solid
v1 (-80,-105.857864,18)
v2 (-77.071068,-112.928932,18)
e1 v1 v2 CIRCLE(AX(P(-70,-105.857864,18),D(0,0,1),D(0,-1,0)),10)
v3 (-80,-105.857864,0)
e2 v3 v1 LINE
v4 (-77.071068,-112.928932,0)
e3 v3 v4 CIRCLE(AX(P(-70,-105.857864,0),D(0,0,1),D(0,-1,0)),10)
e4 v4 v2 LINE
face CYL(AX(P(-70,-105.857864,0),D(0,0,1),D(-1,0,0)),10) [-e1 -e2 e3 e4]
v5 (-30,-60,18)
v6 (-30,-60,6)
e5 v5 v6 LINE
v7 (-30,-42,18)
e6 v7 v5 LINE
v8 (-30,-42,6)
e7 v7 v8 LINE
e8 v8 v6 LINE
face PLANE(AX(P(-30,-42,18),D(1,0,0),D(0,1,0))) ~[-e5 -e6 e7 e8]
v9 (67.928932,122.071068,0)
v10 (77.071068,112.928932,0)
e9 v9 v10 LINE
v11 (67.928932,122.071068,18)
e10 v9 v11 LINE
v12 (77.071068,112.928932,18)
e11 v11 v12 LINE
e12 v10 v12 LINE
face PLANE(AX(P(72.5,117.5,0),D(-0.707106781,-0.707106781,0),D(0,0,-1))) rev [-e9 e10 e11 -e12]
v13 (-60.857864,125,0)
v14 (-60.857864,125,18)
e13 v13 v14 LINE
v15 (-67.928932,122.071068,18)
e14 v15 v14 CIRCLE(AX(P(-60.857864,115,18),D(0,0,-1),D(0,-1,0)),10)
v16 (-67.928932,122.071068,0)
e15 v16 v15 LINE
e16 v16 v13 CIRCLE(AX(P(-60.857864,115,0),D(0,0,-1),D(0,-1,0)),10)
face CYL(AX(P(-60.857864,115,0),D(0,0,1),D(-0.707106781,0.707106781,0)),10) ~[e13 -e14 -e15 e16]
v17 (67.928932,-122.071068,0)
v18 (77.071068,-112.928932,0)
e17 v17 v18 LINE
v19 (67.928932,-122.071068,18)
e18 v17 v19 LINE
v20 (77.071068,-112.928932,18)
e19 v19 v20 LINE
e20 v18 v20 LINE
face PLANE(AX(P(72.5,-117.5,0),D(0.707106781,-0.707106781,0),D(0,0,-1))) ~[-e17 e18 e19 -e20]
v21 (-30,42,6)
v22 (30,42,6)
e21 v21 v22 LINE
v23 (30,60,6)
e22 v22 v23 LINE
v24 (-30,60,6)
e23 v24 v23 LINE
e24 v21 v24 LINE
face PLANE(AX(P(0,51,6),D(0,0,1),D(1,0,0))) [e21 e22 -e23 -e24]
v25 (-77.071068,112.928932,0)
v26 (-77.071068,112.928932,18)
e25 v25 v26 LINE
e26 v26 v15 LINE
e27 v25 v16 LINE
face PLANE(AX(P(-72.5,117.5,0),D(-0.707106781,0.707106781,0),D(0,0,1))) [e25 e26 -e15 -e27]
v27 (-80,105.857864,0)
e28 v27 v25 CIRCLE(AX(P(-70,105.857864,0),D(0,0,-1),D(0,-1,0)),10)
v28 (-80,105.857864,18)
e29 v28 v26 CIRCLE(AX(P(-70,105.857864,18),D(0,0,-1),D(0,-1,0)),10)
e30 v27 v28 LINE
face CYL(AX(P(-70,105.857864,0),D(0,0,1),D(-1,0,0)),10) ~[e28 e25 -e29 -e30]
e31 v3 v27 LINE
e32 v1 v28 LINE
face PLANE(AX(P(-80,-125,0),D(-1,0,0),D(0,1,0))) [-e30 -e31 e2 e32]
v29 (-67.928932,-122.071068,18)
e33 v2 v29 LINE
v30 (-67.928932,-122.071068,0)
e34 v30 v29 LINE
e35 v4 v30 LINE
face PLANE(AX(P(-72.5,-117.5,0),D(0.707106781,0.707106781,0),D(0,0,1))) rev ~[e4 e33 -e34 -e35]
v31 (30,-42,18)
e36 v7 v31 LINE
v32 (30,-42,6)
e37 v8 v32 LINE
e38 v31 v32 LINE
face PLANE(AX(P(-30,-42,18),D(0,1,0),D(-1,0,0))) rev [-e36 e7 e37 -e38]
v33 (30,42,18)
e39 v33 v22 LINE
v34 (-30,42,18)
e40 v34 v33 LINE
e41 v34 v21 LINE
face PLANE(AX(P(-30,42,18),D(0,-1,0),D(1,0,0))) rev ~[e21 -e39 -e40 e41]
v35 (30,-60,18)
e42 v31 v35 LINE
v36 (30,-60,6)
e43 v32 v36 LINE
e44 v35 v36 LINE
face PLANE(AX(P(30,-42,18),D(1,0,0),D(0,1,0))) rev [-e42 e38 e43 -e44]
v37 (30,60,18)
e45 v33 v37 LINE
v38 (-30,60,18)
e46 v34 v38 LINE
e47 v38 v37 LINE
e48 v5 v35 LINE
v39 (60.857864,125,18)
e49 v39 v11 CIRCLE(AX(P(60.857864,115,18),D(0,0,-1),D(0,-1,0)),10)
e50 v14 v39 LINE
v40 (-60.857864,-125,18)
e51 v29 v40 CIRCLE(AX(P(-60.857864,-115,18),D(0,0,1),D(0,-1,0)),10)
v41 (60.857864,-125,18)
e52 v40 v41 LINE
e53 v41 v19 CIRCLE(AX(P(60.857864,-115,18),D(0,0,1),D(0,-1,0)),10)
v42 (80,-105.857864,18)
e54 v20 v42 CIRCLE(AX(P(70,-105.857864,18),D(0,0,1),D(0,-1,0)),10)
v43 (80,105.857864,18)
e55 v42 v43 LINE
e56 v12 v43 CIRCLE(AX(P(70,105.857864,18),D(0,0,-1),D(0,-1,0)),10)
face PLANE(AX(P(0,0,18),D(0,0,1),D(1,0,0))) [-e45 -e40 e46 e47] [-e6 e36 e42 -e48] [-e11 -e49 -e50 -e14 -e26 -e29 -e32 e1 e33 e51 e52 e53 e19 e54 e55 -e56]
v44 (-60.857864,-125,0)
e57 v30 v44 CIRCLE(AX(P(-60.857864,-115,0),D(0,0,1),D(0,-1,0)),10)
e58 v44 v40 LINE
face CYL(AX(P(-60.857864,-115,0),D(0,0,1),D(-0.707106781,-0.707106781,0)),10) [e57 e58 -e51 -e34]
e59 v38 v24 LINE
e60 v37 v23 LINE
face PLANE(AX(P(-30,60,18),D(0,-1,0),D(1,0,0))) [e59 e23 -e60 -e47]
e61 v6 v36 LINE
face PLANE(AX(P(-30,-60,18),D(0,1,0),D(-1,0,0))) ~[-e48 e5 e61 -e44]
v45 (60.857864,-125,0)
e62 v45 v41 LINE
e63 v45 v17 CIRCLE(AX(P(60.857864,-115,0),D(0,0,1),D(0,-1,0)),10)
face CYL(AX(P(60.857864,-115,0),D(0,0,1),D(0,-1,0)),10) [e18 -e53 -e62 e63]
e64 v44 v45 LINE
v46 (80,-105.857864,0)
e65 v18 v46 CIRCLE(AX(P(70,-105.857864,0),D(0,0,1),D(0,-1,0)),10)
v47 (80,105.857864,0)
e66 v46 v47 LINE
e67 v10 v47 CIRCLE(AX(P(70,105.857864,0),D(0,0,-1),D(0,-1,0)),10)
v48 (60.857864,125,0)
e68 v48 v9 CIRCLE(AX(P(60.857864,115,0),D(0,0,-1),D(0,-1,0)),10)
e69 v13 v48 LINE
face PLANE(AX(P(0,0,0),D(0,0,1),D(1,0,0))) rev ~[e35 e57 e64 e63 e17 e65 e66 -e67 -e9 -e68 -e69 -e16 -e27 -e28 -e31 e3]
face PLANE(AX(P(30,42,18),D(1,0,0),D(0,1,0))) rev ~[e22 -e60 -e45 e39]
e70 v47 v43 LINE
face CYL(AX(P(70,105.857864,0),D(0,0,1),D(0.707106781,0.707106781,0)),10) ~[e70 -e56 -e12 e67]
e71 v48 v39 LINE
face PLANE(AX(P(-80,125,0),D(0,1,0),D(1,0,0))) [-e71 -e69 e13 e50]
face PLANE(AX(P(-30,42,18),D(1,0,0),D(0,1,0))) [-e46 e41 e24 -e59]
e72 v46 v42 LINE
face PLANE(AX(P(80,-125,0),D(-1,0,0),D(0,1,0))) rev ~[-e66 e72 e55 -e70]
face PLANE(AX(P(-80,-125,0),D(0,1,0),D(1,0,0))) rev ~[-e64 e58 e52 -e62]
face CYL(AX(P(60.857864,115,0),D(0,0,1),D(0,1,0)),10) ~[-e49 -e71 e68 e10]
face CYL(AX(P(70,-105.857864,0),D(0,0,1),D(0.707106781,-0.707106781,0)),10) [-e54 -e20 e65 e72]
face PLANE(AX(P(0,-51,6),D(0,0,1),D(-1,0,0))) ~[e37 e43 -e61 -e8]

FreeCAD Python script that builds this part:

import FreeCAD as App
import Part
import Sketcher
from FreeCAD import Vector


def edges_at(feature, points):
    """Names of the edges that pass closest to the given points."""
    edges = feature.Shape.Edges
    near = lambda p: min(range(len(edges)), key=lambda i: edges[i].distToShape(Part.Vertex(*p))[0])
    return sorted({f"Edge{near(p) + 1}" for p in points})

doc = App.newDocument("Part")
params = doc.addObject("Spreadsheet::Sheet", "Params")
for row, (alias, value) in enumerate([
    ("sketch1_width", "160 mm"),
    ("sketch1_height", "250 mm"),
    ("pad1_length", "18 mm"),
    ("sketch2_width", "60 mm"),
    ("sketch2_height", "18 mm"),
    ("pocket1_length", "12 mm"),
    ("chamfer_size", "15 mm"),
    ("fillet_radius", "10 mm"),
], start=1):
    params.set(f"A{row}", alias)
    params.set(f"B{row}", "=" + value)
    params.setAlias(f"B{row}", alias)

body = doc.addObject("PartDesign::Body", "Body")

sketch1 = doc.addObject("Sketcher::SketchObject", "Sketch")
body.addObject(sketch1)
sketch1.AttachmentSupport = (doc.XY_Plane, [""])
sketch1.MapMode = "FlatFace"
sketch1.addGeometry(Part.LineSegment(Vector(-80, 125, 0), Vector(-80, -125, 0)), False)
sketch1.addGeometry(Part.LineSegment(Vector(-80, -125, 0), Vector(80, -125, 0)), False)
sketch1.addGeometry(Part.LineSegment(Vector(80, -125, 0), Vector(80, 125, 0)), False)
sketch1.addGeometry(Part.LineSegment(Vector(80, 125, 0), Vector(-80, 125, 0)), False)
sketch1.addConstraint(Sketcher.Constraint("Coincident", 0, 2, 1, 1))
sketch1.addConstraint(Sketcher.Constraint("Coincident", 1, 2, 2, 1))
sketch1.addConstraint(Sketcher.Constraint("Coincident", 2, 2, 3, 1))
sketch1.addConstraint(Sketcher.Constraint("Coincident", 3, 2, 0, 1))
sketch1.addConstraint(Sketcher.Constraint("Vertical", 0))
sketch1.addConstraint(Sketcher.Constraint("Horizontal", 1))
sketch1.addConstraint(Sketcher.Constraint("Vertical", 2))
sketch1.addConstraint(Sketcher.Constraint("Horizontal", 3))
sketch1.addConstraint(Sketcher.Constraint("Symmetric", 0, 2, 2, 2, -1, 1))
sketch1.addConstraint(Sketcher.Constraint("DistanceX", 1, 1, 1, 2, 160.0))
sketch1.addConstraint(Sketcher.Constraint("DistanceY", 0, 2, 0, 1, 250.0))
sketch1.setExpression("Constraints[9]", "Params.sketch1_width")
sketch1.setExpression("Constraints[10]", "Params.sketch1_height")
pad1 = doc.addObject("PartDesign::Pad", "Pad")
body.addObject(pad1)
pad1.Profile = sketch1
pad1.setExpression("Length", "Params.pad1_length")

sketch2 = doc.addObject("Sketcher::SketchObject", "Sketch001")
body.addObject(sketch2)
sketch2.AttachmentSupport = (doc.XY_Plane, [""])
sketch2.MapMode = "FlatFace"
sketch2.AttachmentOffset = App.Placement(Vector(0, 0, 18), App.Rotation())
sketch2.addGeometry(Part.LineSegment(Vector(-30, 60, 0), Vector(-30, 42, 0)), False)
sketch2.addGeometry(Part.LineSegment(Vector(-30, 42, 0), Vector(30, 42, 0)), False)
sketch2.addGeometry(Part.LineSegment(Vector(30, 42, 0), Vector(30, 60, 0)), False)
sketch2.addGeometry(Part.LineSegment(Vector(30, 60, 0), Vector(-30, 60, 0)), False)
sketch2.addConstraint(Sketcher.Constraint("Coincident", 0, 2, 1, 1))
sketch2.addConstraint(Sketcher.Constraint("Coincident", 1, 2, 2, 1))
sketch2.addConstraint(Sketcher.Constraint("Coincident", 2, 2, 3, 1))
sketch2.addConstraint(Sketcher.Constraint("Coincident", 3, 2, 0, 1))
sketch2.addConstraint(Sketcher.Constraint("Vertical", 0))
sketch2.addConstraint(Sketcher.Constraint("Horizontal", 1))
sketch2.addConstraint(Sketcher.Constraint("Vertical", 2))
sketch2.addConstraint(Sketcher.Constraint("Horizontal", 3))
sketch2.addConstraint(Sketcher.Constraint("DistanceX", 1, 1, 1, 2, 60.0))
sketch2.addConstraint(Sketcher.Constraint("DistanceY", 0, 2, 0, 1, 18.0))
sketch2.addConstraint(Sketcher.Constraint("DistanceX", 0, 2, -1, 1, 30.0))
sketch2.addConstraint(Sketcher.Constraint("DistanceY", -1, 1, 0, 2, 42.0))
sketch2.setExpression("Constraints[8]", "Params.sketch2_width")
sketch2.setExpression("Constraints[9]", "Params.sketch2_height")
pocket1 = doc.addObject("PartDesign::Pocket", "Pocket")
body.addObject(pocket1)
pocket1.Profile = sketch2
pocket1.setExpression("Length", "Params.pocket1_length")
doc.recompute()

mirrored = doc.addObject("PartDesign::Mirrored", "Mirrored")
body.addObject(mirrored)
mirrored.Originals = [pocket1]
mirrored.MirrorPlane = (doc.XZ_Plane, [""])
body.Tip = mirrored
doc.recompute()

chamfer = doc.addObject("PartDesign::Chamfer", "Chamfer")
body.addObject(chamfer)
chamfer.Base = (mirrored, edges_at(mirrored, [
    (-80, -125, 9),
    (-80, 125, 9),
    (80, 125, 9),
    (80, -125, 9),
]))
chamfer.setExpression("Size", "Params.chamfer_size")
doc.recompute()

fillet = doc.addObject("PartDesign::Fillet", "Fillet")
body.addObject(fillet)
fillet.Base = (chamfer, edges_at(chamfer, [
    (65, -125, 9),
    (80, -110, 9),
    (-65, -125, 9),
    (-80, -110, 9),
    (-80, 110, 9),
    (-65, 125, 9),
    (65, 125, 9),
    (80, 110, 9),
]))
fillet.setExpression("Radius", "Params.fillet_radius")

doc.recompute()
